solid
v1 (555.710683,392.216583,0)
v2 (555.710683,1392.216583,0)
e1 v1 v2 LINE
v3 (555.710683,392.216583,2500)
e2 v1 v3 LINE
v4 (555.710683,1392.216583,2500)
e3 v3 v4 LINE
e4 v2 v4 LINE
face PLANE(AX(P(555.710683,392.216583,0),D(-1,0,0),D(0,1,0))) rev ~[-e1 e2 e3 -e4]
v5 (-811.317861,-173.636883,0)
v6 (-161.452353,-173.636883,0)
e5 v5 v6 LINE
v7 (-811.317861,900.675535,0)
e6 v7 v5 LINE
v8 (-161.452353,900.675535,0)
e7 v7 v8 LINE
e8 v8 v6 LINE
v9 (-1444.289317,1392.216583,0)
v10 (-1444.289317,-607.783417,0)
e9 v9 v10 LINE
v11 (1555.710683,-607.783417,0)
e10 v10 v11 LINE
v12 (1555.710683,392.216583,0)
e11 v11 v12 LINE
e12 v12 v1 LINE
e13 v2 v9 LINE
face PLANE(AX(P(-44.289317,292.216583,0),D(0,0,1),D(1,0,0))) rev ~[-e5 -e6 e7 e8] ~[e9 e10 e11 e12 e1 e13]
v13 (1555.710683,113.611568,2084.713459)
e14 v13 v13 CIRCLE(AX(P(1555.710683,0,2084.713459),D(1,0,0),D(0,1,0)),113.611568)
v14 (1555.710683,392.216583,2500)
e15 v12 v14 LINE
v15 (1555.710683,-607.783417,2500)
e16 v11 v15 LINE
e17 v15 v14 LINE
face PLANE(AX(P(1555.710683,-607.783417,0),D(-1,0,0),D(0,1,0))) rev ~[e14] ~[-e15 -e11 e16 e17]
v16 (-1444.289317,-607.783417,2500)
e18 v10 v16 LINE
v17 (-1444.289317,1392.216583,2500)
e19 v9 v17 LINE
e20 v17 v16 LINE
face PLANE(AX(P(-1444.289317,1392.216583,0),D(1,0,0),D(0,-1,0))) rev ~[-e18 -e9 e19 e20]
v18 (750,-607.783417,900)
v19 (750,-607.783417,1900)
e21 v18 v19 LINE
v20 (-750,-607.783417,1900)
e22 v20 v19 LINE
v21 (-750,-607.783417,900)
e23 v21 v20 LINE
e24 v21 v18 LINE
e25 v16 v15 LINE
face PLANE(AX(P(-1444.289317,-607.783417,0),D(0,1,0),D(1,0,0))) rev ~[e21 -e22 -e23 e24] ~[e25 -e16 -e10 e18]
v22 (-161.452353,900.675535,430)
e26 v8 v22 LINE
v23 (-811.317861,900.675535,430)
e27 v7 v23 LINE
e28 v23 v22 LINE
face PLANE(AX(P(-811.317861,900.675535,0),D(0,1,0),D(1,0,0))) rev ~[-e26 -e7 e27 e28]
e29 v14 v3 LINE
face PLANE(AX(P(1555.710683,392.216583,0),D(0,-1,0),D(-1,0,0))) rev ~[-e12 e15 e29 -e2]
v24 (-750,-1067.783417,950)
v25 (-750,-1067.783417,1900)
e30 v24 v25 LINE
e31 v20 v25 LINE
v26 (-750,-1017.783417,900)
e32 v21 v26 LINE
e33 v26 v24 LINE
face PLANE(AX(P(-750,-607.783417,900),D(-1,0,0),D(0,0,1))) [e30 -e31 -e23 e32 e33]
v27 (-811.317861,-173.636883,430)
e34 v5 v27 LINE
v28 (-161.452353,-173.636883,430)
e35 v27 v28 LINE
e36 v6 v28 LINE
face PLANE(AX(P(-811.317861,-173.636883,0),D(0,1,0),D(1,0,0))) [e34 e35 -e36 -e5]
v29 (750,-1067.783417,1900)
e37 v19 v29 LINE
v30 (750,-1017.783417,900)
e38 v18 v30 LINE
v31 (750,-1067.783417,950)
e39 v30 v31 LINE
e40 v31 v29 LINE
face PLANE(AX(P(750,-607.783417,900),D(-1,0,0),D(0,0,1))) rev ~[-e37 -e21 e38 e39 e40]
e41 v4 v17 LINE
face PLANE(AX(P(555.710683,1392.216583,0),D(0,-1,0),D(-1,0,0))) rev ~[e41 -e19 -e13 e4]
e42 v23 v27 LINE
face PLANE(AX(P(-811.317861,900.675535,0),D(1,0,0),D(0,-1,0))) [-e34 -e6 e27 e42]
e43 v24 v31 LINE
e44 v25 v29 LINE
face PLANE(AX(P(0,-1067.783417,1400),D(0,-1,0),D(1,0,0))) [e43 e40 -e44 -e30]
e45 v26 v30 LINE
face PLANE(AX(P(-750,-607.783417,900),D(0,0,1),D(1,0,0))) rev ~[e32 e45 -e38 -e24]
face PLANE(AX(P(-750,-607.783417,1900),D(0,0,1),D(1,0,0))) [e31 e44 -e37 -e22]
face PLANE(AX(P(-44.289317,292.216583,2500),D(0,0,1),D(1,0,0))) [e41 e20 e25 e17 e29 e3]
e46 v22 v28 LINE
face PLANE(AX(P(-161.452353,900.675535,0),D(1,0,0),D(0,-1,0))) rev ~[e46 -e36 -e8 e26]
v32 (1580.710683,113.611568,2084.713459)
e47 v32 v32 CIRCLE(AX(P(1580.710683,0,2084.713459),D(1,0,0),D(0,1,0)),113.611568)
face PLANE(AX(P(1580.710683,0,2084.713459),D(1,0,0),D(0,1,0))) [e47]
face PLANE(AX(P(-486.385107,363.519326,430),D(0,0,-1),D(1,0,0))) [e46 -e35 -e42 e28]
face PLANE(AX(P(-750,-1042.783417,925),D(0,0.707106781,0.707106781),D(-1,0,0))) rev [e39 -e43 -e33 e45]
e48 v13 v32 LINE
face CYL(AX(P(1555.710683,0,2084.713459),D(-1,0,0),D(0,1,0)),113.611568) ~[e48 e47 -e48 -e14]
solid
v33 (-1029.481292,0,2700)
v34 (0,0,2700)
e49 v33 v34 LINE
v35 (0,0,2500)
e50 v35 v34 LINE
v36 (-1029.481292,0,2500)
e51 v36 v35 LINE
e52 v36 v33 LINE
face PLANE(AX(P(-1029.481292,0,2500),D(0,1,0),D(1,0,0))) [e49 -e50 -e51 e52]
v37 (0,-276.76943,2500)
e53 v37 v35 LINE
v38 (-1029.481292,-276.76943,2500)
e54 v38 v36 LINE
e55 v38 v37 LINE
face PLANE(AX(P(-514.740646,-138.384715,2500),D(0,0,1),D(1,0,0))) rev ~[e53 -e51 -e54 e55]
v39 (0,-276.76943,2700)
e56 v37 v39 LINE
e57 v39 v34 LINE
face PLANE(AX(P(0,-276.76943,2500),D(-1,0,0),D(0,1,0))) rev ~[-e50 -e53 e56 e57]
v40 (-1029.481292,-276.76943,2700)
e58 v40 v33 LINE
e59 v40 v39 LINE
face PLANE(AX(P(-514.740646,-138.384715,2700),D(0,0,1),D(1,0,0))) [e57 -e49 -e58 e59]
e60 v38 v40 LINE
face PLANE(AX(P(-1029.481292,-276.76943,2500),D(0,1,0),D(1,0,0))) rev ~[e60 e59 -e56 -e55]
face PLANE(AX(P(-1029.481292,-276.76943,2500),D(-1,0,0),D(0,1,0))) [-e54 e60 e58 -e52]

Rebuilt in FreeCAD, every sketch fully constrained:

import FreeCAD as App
import Part
import Sketcher


def edges_at(feature, points):
    """Names of the edges that pass closest to the given points."""
    edges = feature.Shape.Edges
    near = lambda p: min(range(len(edges)), key=lambda i: edges[i].distToShape(Part.Vertex(*p))[0])
    return sorted({f"Edge{near(p) + 1}" for p in points})

doc = App.newDocument("Part")
body = doc.addObject("PartDesign::Body", "Body")

sketch1 = body.newObject("Sketcher::SketchObject", "Sketch")
sketch1.AttachmentSupport = (doc.getObject("XY_Plane"), [""])
sketch1.MapMode = "FlatFace"
sketch1.addGeometry([
    Part.LineSegment(App.Vector(-1444, 1392, 0), App.Vector(-1444, -608, 0)),
    Part.LineSegment(App.Vector(-1444, -608, 0), App.Vector(1556, -608, 0)),
    Part.LineSegment(App.Vector(1556, -608, 0), App.Vector(1556, 392, 0)),
    Part.LineSegment(App.Vector(1556, 392, 0), App.Vector(556, 392, 0)),
    Part.LineSegment(App.Vector(556, 392, 0), App.Vector(556, 1392, 0)),
    Part.LineSegment(App.Vector(556, 1392, 0), App.Vector(-1444, 1392, 0)),
], False)
sketch1.addConstraint([
    Sketcher.Constraint("Coincident", 0, 2, 1, 1),
    Sketcher.Constraint("Coincident", 1, 2, 2, 1),
    Sketcher.Constraint("Coincident", 2, 2, 3, 1),
    Sketcher.Constraint("Coincident", 3, 2, 4, 1),
    Sketcher.Constraint("Coincident", 4, 2, 5, 1),
    Sketcher.Constraint("Coincident", 5, 2, 0, 1),
    Sketcher.Constraint("Vertical", 0),
    Sketcher.Constraint("Horizontal", 1),
    Sketcher.Constraint("Vertical", 2),
    Sketcher.Constraint("Horizontal", 3),
    Sketcher.Constraint("Vertical", 4),
    Sketcher.Constraint("Horizontal", 5),
    Sketcher.Constraint("Equal", 5, 0),
    Sketcher.Constraint("Equal", 3, 2),
    Sketcher.Constraint("Equal", 2, 4),
    Sketcher.Constraint("DistanceX", 1, 1, 1, 2, 3000.0),
    Sketcher.Constraint("DistanceX", 0, 2, -1, 1, 1444.289317),
    Sketcher.Constraint("DistanceY", 0, 2, -1, 1, 607.783417),
])
pad1 = body.newObject("PartDesign::Pad", "Pad")
pad1.Profile = sketch1
pad1.Length = 2500

sketch2 = body.newObject("Sketcher::SketchObject", "Sketch001")
sketch2.AttachmentSupport = (doc.getObject("XY_Plane"), [""])
sketch2.MapMode = "FlatFace"
sketch2.addGeometry([
    Part.LineSegment(App.Vector(-811, -174, 0), App.Vector(-811, 901, 0)),
    Part.LineSegment(App.Vector(-811, 901, 0), App.Vector(-161, 901, 0)),
    Part.LineSegment(App.Vector(-161, 901, 0), App.Vector(-161, -174, 0)),
    Part.LineSegment(App.Vector(-161, -174, 0), App.Vector(-811, -174, 0)),
], False)
sketch2.addConstraint([
    Sketcher.Constraint("Coincident", 0, 2, 1, 1),
    Sketcher.Constraint("Coincident", 1, 2, 2, 1),
    Sketcher.Constraint("Coincident", 2, 2, 3, 1),
    Sketcher.Constraint("Coincident", 3, 2, 0, 1),
    Sketcher.Constraint("Vertical", 0),
    Sketcher.Constraint("Horizontal", 1),
    Sketcher.Constraint("Vertical", 2),
    Sketcher.Constraint("Horizontal", 3),
    Sketcher.Constraint("DistanceX", 1, 1, 1, 2, 649.865508),
    Sketcher.Constraint("DistanceY", 0, 1, 0, 2, 1074.312418),
    Sketcher.Constraint("DistanceX", 0, 2, -1, 1, 811.317861),
    Sketcher.Constraint("DistanceY", -1, 1, 0, 2, 900.675535),
])
pocket1 = body.newObject("PartDesign::Pocket", "Pocket")
pocket1.Profile = sketch2
pocket1.Length = 430
pocket1.Reversed = True

sketch3 = body.newObject("Sketcher::SketchObject", "Sketch002")
sketch3.AttachmentSupport = (doc.getObject("XZ_Plane"), [""])
sketch3.MapMode = "FlatFace"
sketch3.AttachmentOffset = App.Placement(App.Vector(0, 0, 607.783417), App.Rotation())
sketch3.addGeometry([
    Part.LineSegment(App.Vector(-750, 1900, 0), App.Vector(-750, 900, 0)),
    Part.LineSegment(App.Vector(-750, 900, 0), App.Vector(750, 900, 0)),
    Part.LineSegment(App.Vector(750, 900, 0), App.Vector(750, 1900, 0)),
    Part.LineSegment(App.Vector(750, 1900, 0), App.Vector(-750, 1900, 0)),
], False)
sketch3.addConstraint([
    Sketcher.Constraint("Coincident", 0, 2, 1, 1),
    Sketcher.Constraint("Coincident", 1, 2, 2, 1),
    Sketcher.Constraint("Coincident", 2, 2, 3, 1),
    Sketcher.Constraint("Coincident", 3, 2, 0, 1),
    Sketcher.Constraint("Vertical", 0),
    Sketcher.Constraint("Horizontal", 1),
    Sketcher.Constraint("Vertical", 2),
    Sketcher.Constraint("Horizontal", 3),
    Sketcher.Constraint("DistanceX", 1, 1, 1, 2, 1500.0),
    Sketcher.Constraint("DistanceY", 0, 2, 0, 1, 1000.0),
    Sketcher.Constraint("DistanceX", 0, 2, -1, 1, 750.0),
    Sketcher.Constraint("DistanceY", -1, 1, 0, 2, 900.0),
])
pad2 = body.newObject("PartDesign::Pad", "Pad001")
pad2.Profile = sketch3
pad2.Length = 460

sketch4 = body.newObject("Sketcher::SketchObject", "Sketch003")
sketch4.AttachmentSupport = (doc.getObject("YZ_Plane"), [""])
sketch4.MapMode = "FlatFace"
sketch4.AttachmentOffset = App.Placement(App.Vector(0, 0, 1555.710683), App.Rotation())
sketch4.addGeometry(Part.Circle(App.Vector(0, 2085, 0), App.Vector(0, 0, 1), 114), False)
sketch4.addConstraint([
    Sketcher.Constraint("PointOnObject", 0, 3, -2),
    Sketcher.Constraint("Diameter", 0, 227.223136),
    Sketcher.Constraint("DistanceY", -1, 1, 0, 3, 2084.713459),
])
pad3 = body.newObject("PartDesign::Pad", "Pad002")
pad3.Profile = sketch4
pad3.Length = 25
doc.recompute()

chamfer = body.newObject("PartDesign::Chamfer", "Chamfer")
chamfer.Base = (pad3, edges_at(pad3, [(0, -1067.783, 900)]))
chamfer.Size = 50
body2 = doc.addObject("PartDesign::Body", "Body001")

sketch5 = body2.newObject("Sketcher::SketchObject", "Sketch004")
sketch5.AttachmentSupport = (doc.getObject("XY_Plane001"), [""])
sketch5.MapMode = "FlatFace"
sketch5.AttachmentOffset = App.Placement(App.Vector(0, 0, 2500), App.Rotation())
sketch5.addGeometry([
    Part.LineSegment(App.Vector(-1029, 0, 0), App.Vector(-1029, -277, 0)),
    Part.LineSegment(App.Vector(-1029, -277, 0), App.Vector(0, -277, 0)),
    Part.LineSegment(App.Vector(0, -277, 0), App.Vector(0, 0, 0)),
    Part.LineSegment(App.Vector(0, 0, 0), App.Vector(-1029, 0, 0)),
], False)
sketch5.addConstraint([
    Sketcher.Constraint("Coincident", 0, 2, 1, 1),
    Sketcher.Constraint("Coincident", 1, 2, 2, 1),
    Sketcher.Constraint("Coincident", 2, 2, 3, 1),
    Sketcher.Constraint("Coincident", 3, 2, 0, 1),
    Sketcher.Constraint("Vertical", 0),
    Sketcher.Constraint("Horizontal", 1),
    Sketcher.Constraint("Vertical", 2),
    Sketcher.Constraint("Horizontal", 3),
    Sketcher.Constraint("Coincident", 2, 2, -1, 1),
    Sketcher.Constraint("DistanceX", 1, 1, 1, 2, 1029.481292),
    Sketcher.Constraint("DistanceY", 0, 2, 0, 1, 276.769429),
])
pad4 = body2.newObject("PartDesign::Pad", "Pad003")
pad4.Profile = sketch5
pad4.Length = 200

doc.recompute()
